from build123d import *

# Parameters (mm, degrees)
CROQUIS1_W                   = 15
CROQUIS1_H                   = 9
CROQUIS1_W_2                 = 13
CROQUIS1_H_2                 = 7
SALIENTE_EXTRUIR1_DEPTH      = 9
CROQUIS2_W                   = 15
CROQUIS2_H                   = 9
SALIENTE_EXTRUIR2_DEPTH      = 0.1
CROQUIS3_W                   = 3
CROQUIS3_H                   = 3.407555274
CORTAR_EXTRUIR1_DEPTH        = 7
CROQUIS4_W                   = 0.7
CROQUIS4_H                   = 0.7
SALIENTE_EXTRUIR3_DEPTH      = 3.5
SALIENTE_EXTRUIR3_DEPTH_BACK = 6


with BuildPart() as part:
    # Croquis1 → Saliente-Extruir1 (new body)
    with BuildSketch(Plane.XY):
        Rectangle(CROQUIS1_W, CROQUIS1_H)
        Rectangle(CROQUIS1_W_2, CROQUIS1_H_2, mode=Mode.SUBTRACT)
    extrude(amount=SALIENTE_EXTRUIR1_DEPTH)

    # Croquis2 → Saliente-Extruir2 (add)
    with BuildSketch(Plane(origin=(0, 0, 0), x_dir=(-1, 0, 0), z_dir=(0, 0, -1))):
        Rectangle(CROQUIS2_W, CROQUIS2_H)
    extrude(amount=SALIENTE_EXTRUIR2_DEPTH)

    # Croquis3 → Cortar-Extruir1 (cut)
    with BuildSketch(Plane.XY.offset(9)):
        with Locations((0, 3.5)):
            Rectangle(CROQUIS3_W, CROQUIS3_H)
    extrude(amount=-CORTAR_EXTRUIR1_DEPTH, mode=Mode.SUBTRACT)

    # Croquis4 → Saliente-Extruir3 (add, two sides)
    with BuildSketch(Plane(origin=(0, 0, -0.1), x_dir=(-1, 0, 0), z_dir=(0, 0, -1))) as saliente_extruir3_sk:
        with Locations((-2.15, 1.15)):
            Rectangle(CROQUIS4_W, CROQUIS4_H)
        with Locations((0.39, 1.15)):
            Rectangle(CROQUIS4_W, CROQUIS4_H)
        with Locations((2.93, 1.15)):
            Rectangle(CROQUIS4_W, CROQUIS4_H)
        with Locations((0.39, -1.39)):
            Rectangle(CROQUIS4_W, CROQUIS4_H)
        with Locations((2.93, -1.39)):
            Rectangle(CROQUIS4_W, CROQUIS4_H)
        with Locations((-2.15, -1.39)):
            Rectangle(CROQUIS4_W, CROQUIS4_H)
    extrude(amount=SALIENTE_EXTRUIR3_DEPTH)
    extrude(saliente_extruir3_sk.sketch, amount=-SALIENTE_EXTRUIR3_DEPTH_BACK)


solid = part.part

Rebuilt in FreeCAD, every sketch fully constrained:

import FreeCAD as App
import Part
import Sketcher

V = App.Vector
Q = App.Units.Quantity

doc = App.newDocument("Part")
params = doc.addObject("Spreadsheet::Sheet", "Params")
for row, (alias, value) in enumerate([
    ("sketch1_width", "15 mm"),
    ("sketch1_width2", "13 mm"),
    ("sketch1_height", "9 mm"),
    ("sketch1_height2", "7 mm"),
    ("pad1_length", "9 mm"),
    ("sketch2_width", "15 mm"),
    ("sketch2_height", "9 mm"),
    ("pad2_length", "0.1 mm"),
    ("sketch3_width", "3 mm"),
    ("pocket1_length", "7 mm"),
    ("sketch4_width", "0.7 mm"),
    ("pad3_length", "3.5 mm"),
    ("pad3_length2", "6 mm"),
], start=1):
    params.set(f"A{row}", alias)
    params.set(f"B{row}", "=" + value)
    params.setAlias(f"B{row}", alias)

body = doc.addObject("PartDesign::Body", "Body")

sketch1 = body.newObject("Sketcher::SketchObject", "Sketch")
sketch1.AttachmentSupport = (doc.getObject("XY_Plane"), [""])
sketch1.MapMode = "FlatFace"
sketch1.addGeometry(Part.LineSegment(V(-7.5, 4.5, 0), V(-7.5, -4.5, 0)), False)
sketch1.addGeometry(Part.LineSegment(V(-7.5, -4.5, 0), V(7.5, -4.5, 0)), False)
sketch1.addGeometry(Part.LineSegment(V(7.5, -4.5, 0), V(7.5, 4.5, 0)), False)
sketch1.addGeometry(Part.LineSegment(V(7.5, 4.5, 0), V(-7.5, 4.5, 0)), False)
sketch1.addGeometry(Part.LineSegment(V(6.5, -3.5, 0), V(-6.5, -3.5, 0)), False)
sketch1.addGeometry(Part.LineSegment(V(-6.5, -3.5, 0), V(-6.5, 3.5, 0)), False)
sketch1.addGeometry(Part.LineSegment(V(-6.5, 3.5, 0), V(6.5, 3.5, 0)), False)
sketch1.addGeometry(Part.LineSegment(V(6.5, 3.5, 0), V(6.5, -3.5, 0)), False)
sketch1.addConstraint(Sketcher.Constraint("Coincident", 0, 2, 1, 1))
sketch1.addConstraint(Sketcher.Constraint("Coincident", 1, 2, 2, 1))
sketch1.addConstraint(Sketcher.Constraint("Coincident", 2, 2, 3, 1))
sketch1.addConstraint(Sketcher.Constraint("Coincident", 3, 2, 0, 1))
sketch1.addConstraint(Sketcher.Constraint("Coincident", 4, 2, 5, 1))
sketch1.addConstraint(Sketcher.Constraint("Coincident", 5, 2, 6, 1))
sketch1.addConstraint(Sketcher.Constraint("Coincident", 6, 2, 7, 1))
sketch1.addConstraint(Sketcher.Constraint("Coincident", 7, 2, 4, 1))
sketch1.addConstraint(Sketcher.Constraint("Vertical", 0))
sketch1.addConstraint(Sketcher.Constraint("Horizontal", 1))
sketch1.addConstraint(Sketcher.Constraint("Vertical", 2))
sketch1.addConstraint(Sketcher.Constraint("Horizontal", 3))
sketch1.addConstraint(Sketcher.Constraint("Horizontal", 4))
sketch1.addConstraint(Sketcher.Constraint("Vertical", 5))
sketch1.addConstraint(Sketcher.Constraint("Horizontal", 6))
sketch1.addConstraint(Sketcher.Constraint("Vertical", 7))
sketch1.addConstraint(Sketcher.Constraint("Symmetric", 0, 2, 2, 2, -1, 1))
sketch1.addConstraint(Sketcher.Constraint("Symmetric", 4, 2, 6, 2, -1, 1))
sketch1.addConstraint(Sketcher.Constraint("DistanceX", 1, 1, 1, 2, Q("15 mm")))
sketch1.addConstraint(Sketcher.Constraint("DistanceX", 4, 2, 4, 1, Q("13 mm")))
sketch1.addConstraint(Sketcher.Constraint("DistanceY", 0, 2, 0, 1, Q("9 mm")))
sketch1.addConstraint(Sketcher.Constraint("DistanceY", 5, 1, 5, 2, Q("7 mm")))
sketch1.setExpression("Constraints[18]", "Params.sketch1_width")
sketch1.setExpression("Constraints[19]", "Params.sketch1_width2")
sketch1.setExpression("Constraints[20]", "Params.sketch1_height")
sketch1.setExpression("Constraints[21]", "Params.sketch1_height2")
pad1 = body.newObject("PartDesign::Pad", "Pad")
pad1.Profile = sketch1
pad1.setExpression("Length", "Params.pad1_length")

sketch2 = body.newObject("Sketcher::SketchObject", "Sketch001")
sketch2.AttachmentSupport = (doc.getObject("XY_Plane"), [""])
sketch2.MapMode = "FlatFace"
sketch2.addGeometry(Part.LineSegment(V(7.5, 4.5, 0), V(7.5, -4.5, 0)), False)
sketch2.addGeometry(Part.LineSegment(V(7.5, -4.5, 0), V(-7.5, -4.5, 0)), False)
sketch2.addGeometry(Part.LineSegment(V(-7.5, -4.5, 0), V(-7.5, 4.5, 0)), False)
sketch2.addGeometry(Part.LineSegment(V(-7.5, 4.5, 0), V(7.5, 4.5, 0)), False)
sketch2.addConstraint(Sketcher.Constraint("Coincident", 0, 2, 1, 1))
sketch2.addConstraint(Sketcher.Constraint("Coincident", 1, 2, 2, 1))
sketch2.addConstraint(Sketcher.Constraint("Coincident", 2, 2, 3, 1))
sketch2.addConstraint(Sketcher.Constraint("Coincident", 3, 2, 0, 1))
sketch2.addConstraint(Sketcher.Constraint("Vertical", 0))
sketch2.addConstraint(Sketcher.Constraint("Horizontal", 1))
sketch2.addConstraint(Sketcher.Constraint("Vertical", 2))
sketch2.addConstraint(Sketcher.Constraint("Horizontal", 3))
sketch2.addConstraint(Sketcher.Constraint("Symmetric", 0, 2, 2, 2, -1, 1))
sketch2.addConstraint(Sketcher.Constraint("DistanceX", 1, 2, 1, 1, Q("15 mm")))
sketch2.addConstraint(Sketcher.Constraint("DistanceY", 0, 2, 0, 1, Q("9 mm")))
sketch2.setExpression("Constraints[9]", "Params.sketch2_width")
sketch2.setExpression("Constraints[10]", "Params.sketch2_height")
pad2 = body.newObject("PartDesign::Pad", "Pad001")
pad2.Profile = sketch2
pad2.setExpression("Length", "Params.pad2_length")
pad2.Reversed = True

sketch3 = body.newObject("Sketcher::SketchObject", "Sketch002")
sketch3.AttachmentSupport = (doc.getObject("XY_Plane"), [""])
sketch3.MapMode = "FlatFace"
sketch3.AttachmentOffset = App.Placement(V(0, 0, 9), App.Rotation())
sketch3.addGeometry(Part.LineSegment(V(-1.5, 5.203778, 0), V(-1.5, 1.796222, 0)), False)
sketch3.addGeometry(Part.LineSegment(V(-1.5, 1.796222, 0), V(1.5, 1.796222, 0)), False)
sketch3.addGeometry(Part.LineSegment(V(1.5, 1.796222, 0), V(1.5, 5.203778, 0)), False)
sketch3.addGeometry(Part.LineSegment(V(1.5, 5.203778, 0), V(-1.5, 5.203778, 0)), False)
sketch3.addConstraint(Sketcher.Constraint("Coincident", 0, 2, 1, 1))
sketch3.addConstraint(Sketcher.Constraint("Coincident", 1, 2, 2, 1))
sketch3.addConstraint(Sketcher.Constraint("Coincident", 2, 2, 3, 1))
sketch3.addConstraint(Sketcher.Constraint("Coincident", 3, 2, 0, 1))
sketch3.addConstraint(Sketcher.Constraint("Vertical", 0))
sketch3.addConstraint(Sketcher.Constraint("Horizontal", 1))
sketch3.addConstraint(Sketcher.Constraint("Vertical", 2))
sketch3.addConstraint(Sketcher.Constraint("Horizontal", 3))
sketch3.addConstraint(Sketcher.Constraint("DistanceX", 1, 1, 1, 2, Q("3 mm")))
sketch3.addConstraint(Sketcher.Constraint("DistanceX", 0, 2, -1, 1, Q("1.5 mm")))
sketch3.addConstraint(Sketcher.Constraint("DistanceY", 0, 2, 0, 1, Q("3.407555 mm")))
sketch3.addConstraint(Sketcher.Constraint("DistanceY", -1, 1, 0, 2, Q("1.796222 mm")))
sketch3.setExpression("Constraints[8]", "Params.sketch3_width")
pocket1 = body.newObject("PartDesign::Pocket", "Pocket")
pocket1.Profile = sketch3
pocket1.setExpression("Length", "Params.pocket1_length")

sketch4 = body.newObject("Sketcher::SketchObject", "Sketch003")
sketch4.AttachmentSupport = (doc.getObject("XY_Plane"), [""])
sketch4.MapMode = "FlatFace"
sketch4.AttachmentOffset = App.Placement(V(0, 0, -0.1), App.Rotation())
sketch4.addGeometry(Part.LineSegment(V(2.5, 1.5, 0), V(2.5, 0.8, 0)), False)
sketch4.addGeometry(Part.LineSegment(V(2.5, 0.8, 0), V(1.8, 0.8, 0)), False)
sketch4.addGeometry(Part.LineSegment(V(1.8, 0.8, 0), V(1.8, 1.5, 0)), False)
sketch4.addGeometry(Part.LineSegment(V(1.8, 1.5, 0), V(2.5, 1.5, 0)), False)
sketch4.addGeometry(Part.LineSegment(V(-0.04, 1.5, 0), V(-0.04, 0.8, 0)), False)
sketch4.addGeometry(Part.LineSegment(V(-0.04, 0.8, 0), V(-0.74, 0.8, 0)), False)
sketch4.addGeometry(Part.LineSegment(V(-0.74, 0.8, 0), V(-0.74, 1.5, 0)), False)
sketch4.addGeometry(Part.LineSegment(V(-0.74, 1.5, 0), V(-0.04, 1.5, 0)), False)
sketch4.addGeometry(Part.LineSegment(V(-2.58, 1.5, 0), V(-2.58, 0.8, 0)), False)
sketch4.addGeometry(Part.LineSegment(V(-2.58, 0.8, 0), V(-3.28, 0.8, 0)), False)
sketch4.addGeometry(Part.LineSegment(V(-3.28, 0.8, 0), V(-3.28, 1.5, 0)), False)
sketch4.addGeometry(Part.LineSegment(V(-3.28, 1.5, 0), V(-2.58, 1.5, 0)), False)
sketch4.addGeometry(Part.LineSegment(V(-0.04, -1.04, 0), V(-0.04, -1.74, 0)), False)
sketch4.addGeometry(Part.LineSegment(V(-0.04, -1.74, 0), V(-0.74, -1.74, 0)), False)
sketch4.addGeometry(Part.LineSegment(V(-0.74, -1.74, 0), V(-0.74, -1.04, 0)), False)
sketch4.addGeometry(Part.LineSegment(V(-0.74, -1.04, 0), V(-0.04, -1.04, 0)), False)
sketch4.addGeometry(Part.LineSegment(V(-2.58, -1.04, 0), V(-2.58, -1.74, 0)), False)
sketch4.addGeometry(Part.LineSegment(V(-2.58, -1.74, 0), V(-3.28, -1.74, 0)), False)
sketch4.addGeometry(Part.LineSegment(V(-3.28, -1.74, 0), V(-3.28, -1.04, 0)), False)
sketch4.addGeometry(Part.LineSegment(V(-3.28, -1.04, 0), V(-2.58, -1.04, 0)), False)
sketch4.addGeometry(Part.LineSegment(V(2.5, -1.04, 0), V(2.5, -1.74, 0)), False)
sketch4.addGeometry(Part.LineSegment(V(2.5, -1.74, 0), V(1.8, -1.74, 0)), False)
sketch4.addGeometry(Part.LineSegment(V(1.8, -1.74, 0), V(1.8, -1.04, 0)), False)
sketch4.addGeometry(Part.LineSegment(V(1.8, -1.04, 0), V(2.5, -1.04, 0)), False)
sketch4.addConstraint(Sketcher.Constraint("Coincident", 0, 2, 1, 1))
sketch4.addConstraint(Sketcher.Constraint("Coincident", 1, 2, 2, 1))
sketch4.addConstraint(Sketcher.Constraint("Coincident", 2, 2, 3, 1))
sketch4.addConstraint(Sketcher.Constraint("Coincident", 3, 2, 0, 1))
sketch4.addConstraint(Sketcher.Constraint("Coincident", 4, 2, 5, 1))
sketch4.addConstraint(Sketcher.Constraint("Coincident", 5, 2, 6, 1))
sketch4.addConstraint(Sketcher.Constraint("Coincident", 6, 2, 7, 1))
sketch4.addConstraint(Sketcher.Constraint("Coincident", 7, 2, 4, 1))
sketch4.addConstraint(Sketcher.Constraint("Coincident", 8, 2, 9, 1))
sketch4.addConstraint(Sketcher.Constraint("Coincident", 9, 2, 10, 1))
sketch4.addConstraint(Sketcher.Constraint("Coincident", 10, 2, 11, 1))
sketch4.addConstraint(Sketcher.Constraint("Coincident", 11, 2, 8, 1))
sketch4.addConstraint(Sketcher.Constraint("Coincident", 12, 2, 13, 1))
sketch4.addConstraint(Sketcher.Constraint("Coincident", 13, 2, 14, 1))
sketch4.addConstraint(Sketcher.Constraint("Coincident", 14, 2, 15, 1))
sketch4.addConstraint(Sketcher.Constraint("Coincident", 15, 2, 12, 1))
sketch4.addConstraint(Sketcher.Constraint("Coincident", 16, 2, 17, 1))
sketch4.addConstraint(Sketcher.Constraint("Coincident", 17, 2, 18, 1))
sketch4.addConstraint(Sketcher.Constraint("Coincident", 18, 2, 19, 1))
sketch4.addConstraint(Sketcher.Constraint("Coincident", 19, 2, 16, 1))
sketch4.addConstraint(Sketcher.Constraint("Coincident", 20, 2, 21, 1))
sketch4.addConstraint(Sketcher.Constraint("Coincident", 21, 2, 22, 1))
sketch4.addConstraint(Sketcher.Constraint("Coincident", 22, 2, 23, 1))
sketch4.addConstraint(Sketcher.Constraint("Coincident", 23, 2, 20, 1))
sketch4.addConstraint(Sketcher.Constraint("Vertical", 0))
sketch4.addConstraint(Sketcher.Constraint("Horizontal", 1))
sketch4.addConstraint(Sketcher.Constraint("Vertical", 2))
sketch4.addConstraint(Sketcher.Constraint("Horizontal", 3))
sketch4.addConstraint(Sketcher.Constraint("Vertical", 4))
sketch4.addConstraint(Sketcher.Constraint("Horizontal", 5))
sketch4.addConstraint(Sketcher.Constraint("Vertical", 6))
sketch4.addConstraint(Sketcher.Constraint("Horizontal", 7))
sketch4.addConstraint(Sketcher.Constraint("Vertical", 8))
sketch4.addConstraint(Sketcher.Constraint("Horizontal", 9))
sketch4.addConstraint(Sketcher.Constraint("Vertical", 10))
sketch4.addConstraint(Sketcher.Constraint("Horizontal", 11))
sketch4.addConstraint(Sketcher.Constraint("Vertical", 12))
sketch4.addConstraint(Sketcher.Constraint("Horizontal", 13))
sketch4.addConstraint(Sketcher.Constraint("Vertical", 14))
sketch4.addConstraint(Sketcher.Constraint("Horizontal", 15))
sketch4.addConstraint(Sketcher.Constraint("Vertical", 16))
sketch4.addConstraint(Sketcher.Constraint("Horizontal", 17))
sketch4.addConstraint(Sketcher.Constraint("Vertical", 18))
sketch4.addConstraint(Sketcher.Constraint("Horizontal", 19))
sketch4.addConstraint(Sketcher.Constraint("Vertical", 20))
sketch4.addConstraint(Sketcher.Constraint("Horizontal", 21))
sketch4.addConstraint(Sketcher.Constraint("Vertical", 22))
sketch4.addConstraint(Sketcher.Constraint("Horizontal", 23))
sketch4.addConstraint(Sketcher.Constraint("Horizontal", 1, 2, 4, 2))
sketch4.addConstraint(Sketcher.Constraint("Horizontal", 3, 2, 6, 2))
sketch4.addConstraint(Sketcher.Constraint("Horizontal", 5, 2, 8, 2))
sketch4.addConstraint(Sketcher.Constraint("Horizontal", 7, 2, 10, 2))
sketch4.addConstraint(Sketcher.Constraint("Horizontal", 13, 2, 16, 2))
sketch4.addConstraint(Sketcher.Constraint("Horizontal", 15, 2, 18, 2))
sketch4.addConstraint(Sketcher.Constraint("Horizontal", 17, 2, 20, 2))
sketch4.addConstraint(Sketcher.Constraint("Horizontal", 19, 2, 22, 2))
sketch4.addConstraint(Sketcher.Constraint("Vertical", 7, 2, 12, 2))
sketch4.addConstraint(Sketcher.Constraint("Vertical", 6, 2, 13, 2))
sketch4.addConstraint(Sketcher.Constraint("Vertical", 11, 2, 16, 2))
sketch4.addConstraint(Sketcher.Constraint("Vertical", 10, 2, 17, 2))
sketch4.addConstraint(Sketcher.Constraint("Vertical", 3, 2, 20, 2))
sketch4.addConstraint(Sketcher.Constraint("Vertical", 2, 2, 21, 2))
sketch4.addConstraint(Sketcher.Constraint("Equal", 3, 5))
sketch4.addConstraint(Sketcher.Constraint("Equal", 7, 9))
sketch4.addConstraint(Sketcher.Constraint("Equal", 23, 0))
sketch4.addConstraint(Sketcher.Constraint("Equal", 10, 12))
sketch4.addConstraint(Sketcher.Constraint("DistanceX", 1, 2, 1, 1, Q("0.7 mm")))
sketch4.addConstraint(Sketcher.Constraint("DistanceX", -1, 1, 0, 2, Q("2.5 mm")))
sketch4.addConstraint(Sketcher.Constraint("DistanceY", -1, 1, 0, 2, Q("0.8 mm")))
sketch4.addConstraint(Sketcher.Constraint("DistanceX", 4, 2, -1, 1, Q("0.04 mm")))
sketch4.addConstraint(Sketcher.Constraint("DistanceX", 8, 2, -1, 1, Q("2.58 mm")))
sketch4.addConstraint(Sketcher.Constraint("DistanceY", 12, 2, -1, 1, Q("1.74 mm")))
sketch4.setExpression("Constraints[66]", "Params.sketch4_width")
pad3 = body.newObject("PartDesign::Pad", "Pad002")
pad3.Profile = sketch4
pad3.Type = "TwoLengths"
pad3.setExpression("Length", "Params.pad3_length")
pad3.setExpression("Length2", "Params.pad3_length2")
pad3.Reversed = True

doc.recompute()
